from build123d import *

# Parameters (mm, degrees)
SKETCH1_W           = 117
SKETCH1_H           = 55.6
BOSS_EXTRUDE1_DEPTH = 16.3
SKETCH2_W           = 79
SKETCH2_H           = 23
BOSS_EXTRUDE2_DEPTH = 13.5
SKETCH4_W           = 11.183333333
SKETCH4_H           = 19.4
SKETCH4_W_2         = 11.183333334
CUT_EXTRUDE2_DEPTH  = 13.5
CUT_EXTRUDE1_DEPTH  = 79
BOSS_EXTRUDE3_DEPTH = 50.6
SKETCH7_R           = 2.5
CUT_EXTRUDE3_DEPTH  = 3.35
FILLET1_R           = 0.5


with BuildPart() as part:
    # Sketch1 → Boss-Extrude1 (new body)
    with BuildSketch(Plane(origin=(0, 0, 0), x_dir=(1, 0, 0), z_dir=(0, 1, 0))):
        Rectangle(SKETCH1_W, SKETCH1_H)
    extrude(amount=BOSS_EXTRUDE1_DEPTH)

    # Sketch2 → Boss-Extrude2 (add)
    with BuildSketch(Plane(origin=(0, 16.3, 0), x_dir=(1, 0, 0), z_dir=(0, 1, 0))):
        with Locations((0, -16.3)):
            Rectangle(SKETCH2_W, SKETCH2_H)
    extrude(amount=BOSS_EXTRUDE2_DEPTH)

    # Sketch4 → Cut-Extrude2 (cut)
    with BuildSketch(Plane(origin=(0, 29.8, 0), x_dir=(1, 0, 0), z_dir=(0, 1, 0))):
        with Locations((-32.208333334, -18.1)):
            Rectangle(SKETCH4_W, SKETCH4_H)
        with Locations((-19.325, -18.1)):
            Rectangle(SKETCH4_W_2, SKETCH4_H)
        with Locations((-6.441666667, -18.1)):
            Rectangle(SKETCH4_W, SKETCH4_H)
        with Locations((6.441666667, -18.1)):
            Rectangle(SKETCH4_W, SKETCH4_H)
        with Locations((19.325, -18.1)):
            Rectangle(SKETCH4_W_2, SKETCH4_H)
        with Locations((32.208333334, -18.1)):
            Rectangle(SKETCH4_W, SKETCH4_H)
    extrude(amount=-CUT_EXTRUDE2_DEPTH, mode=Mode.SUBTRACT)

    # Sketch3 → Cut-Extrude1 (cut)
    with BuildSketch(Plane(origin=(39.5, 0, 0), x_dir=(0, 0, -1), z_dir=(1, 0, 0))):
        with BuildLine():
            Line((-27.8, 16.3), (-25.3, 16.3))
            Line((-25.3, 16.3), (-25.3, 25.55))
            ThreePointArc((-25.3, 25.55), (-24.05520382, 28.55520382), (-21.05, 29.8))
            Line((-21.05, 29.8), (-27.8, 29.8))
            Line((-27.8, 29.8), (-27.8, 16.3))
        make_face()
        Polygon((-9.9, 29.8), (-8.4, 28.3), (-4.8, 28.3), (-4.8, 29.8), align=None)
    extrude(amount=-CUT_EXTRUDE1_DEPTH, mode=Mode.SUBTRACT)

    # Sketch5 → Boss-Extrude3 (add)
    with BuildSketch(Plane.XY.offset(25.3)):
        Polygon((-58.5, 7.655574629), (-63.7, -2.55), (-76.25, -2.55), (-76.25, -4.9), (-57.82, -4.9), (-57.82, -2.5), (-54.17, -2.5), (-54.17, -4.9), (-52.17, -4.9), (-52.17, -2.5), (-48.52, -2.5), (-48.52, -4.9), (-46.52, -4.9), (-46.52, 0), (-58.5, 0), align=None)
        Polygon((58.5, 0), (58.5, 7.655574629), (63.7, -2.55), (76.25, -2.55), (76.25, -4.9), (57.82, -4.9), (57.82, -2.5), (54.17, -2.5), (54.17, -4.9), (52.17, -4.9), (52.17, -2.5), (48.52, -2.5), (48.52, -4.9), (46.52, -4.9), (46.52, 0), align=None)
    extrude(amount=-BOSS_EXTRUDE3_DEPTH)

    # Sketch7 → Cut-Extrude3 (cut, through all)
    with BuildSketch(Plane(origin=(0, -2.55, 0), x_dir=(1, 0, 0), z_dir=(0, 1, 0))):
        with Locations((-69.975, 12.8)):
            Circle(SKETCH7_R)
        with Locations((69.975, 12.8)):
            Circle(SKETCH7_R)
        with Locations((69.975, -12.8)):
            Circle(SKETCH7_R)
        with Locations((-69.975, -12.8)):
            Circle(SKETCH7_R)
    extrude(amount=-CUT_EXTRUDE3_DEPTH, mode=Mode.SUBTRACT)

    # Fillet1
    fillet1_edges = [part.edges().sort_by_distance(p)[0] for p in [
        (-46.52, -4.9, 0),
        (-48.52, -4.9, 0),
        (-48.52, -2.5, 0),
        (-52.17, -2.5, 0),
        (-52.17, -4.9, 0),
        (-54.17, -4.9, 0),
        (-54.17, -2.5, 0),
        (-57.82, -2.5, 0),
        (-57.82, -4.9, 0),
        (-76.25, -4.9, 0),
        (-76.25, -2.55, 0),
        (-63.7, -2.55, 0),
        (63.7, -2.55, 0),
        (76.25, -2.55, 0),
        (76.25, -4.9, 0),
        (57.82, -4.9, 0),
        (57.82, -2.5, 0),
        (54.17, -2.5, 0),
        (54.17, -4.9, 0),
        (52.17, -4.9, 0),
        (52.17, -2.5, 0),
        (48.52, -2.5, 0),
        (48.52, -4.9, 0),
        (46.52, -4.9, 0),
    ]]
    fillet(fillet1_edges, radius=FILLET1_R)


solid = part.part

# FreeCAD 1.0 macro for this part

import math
import FreeCAD as App
import Part
import Sketcher

V = App.Vector
Q = App.Units.Quantity


def edges_at(feature, points):
    """Names of the edges that pass closest to the given points."""
    edges = feature.Shape.Edges
    near = lambda p: min(range(len(edges)), key=lambda i: edges[i].distToShape(Part.Vertex(*p))[0])
    return sorted({f"Edge{near(p) + 1}" for p in points})

doc = App.newDocument("Part")
body = doc.addObject("PartDesign::Body", "Body")

sketch1 = body.newObject("Sketcher::SketchObject", "Sketch")
sketch1.AttachmentSupport = (doc.getObject("XZ_Plane"), [""])
sketch1.MapMode = "FlatFace"
sketch1.addGeometry([
    Part.LineSegment(V(-58, -28, 0), V(-58, 28, 0)),
    Part.LineSegment(V(-58, 28, 0), V(58, 28, 0)),
    Part.LineSegment(V(58, 28, 0), V(58, -28, 0)),
    Part.LineSegment(V(58, -28, 0), V(-58, -28, 0)),
], False)
sketch1.addConstraint([
    Sketcher.Constraint("Coincident", 0, 2, 1, 1),
    Sketcher.Constraint("Coincident", 1, 2, 2, 1),
    Sketcher.Constraint("Coincident", 2, 2, 3, 1),
    Sketcher.Constraint("Coincident", 3, 2, 0, 1),
    Sketcher.Constraint("Vertical", 0),
    Sketcher.Constraint("Horizontal", 1),
    Sketcher.Constraint("Vertical", 2),
    Sketcher.Constraint("Horizontal", 3),
    Sketcher.Constraint("Symmetric", 0, 2, 2, 2, -1, 1),
    Sketcher.Constraint("DistanceX", 1, 1, 1, 2, 117.0),
    Sketcher.Constraint("DistanceY", 0, 1, 0, 2, 55.6),
])
pad1 = body.newObject("PartDesign::Pad", "Pad")
pad1.Profile = sketch1
pad1.Length = 16.3
pad1.Reversed = True

sketch2 = body.newObject("Sketcher::SketchObject", "Sketch001")
sketch2.AttachmentSupport = (doc.getObject("XZ_Plane"), [""])
sketch2.MapMode = "FlatFace"
sketch2.AttachmentOffset = App.Placement(V(0, 0, -16.3), App.Rotation())
sketch2.addGeometry([
    Part.LineSegment(V(-40, 5, 0), V(-40, 28, 0)),
    Part.LineSegment(V(-40, 28, 0), V(40, 28, 0)),
    Part.LineSegment(V(40, 28, 0), V(40, 5, 0)),
    Part.LineSegment(V(40, 5, 0), V(-40, 5, 0)),
], False)
sketch2.addConstraint([
    Sketcher.Constraint("Coincident", 0, 2, 1, 1),
    Sketcher.Constraint("Coincident", 1, 2, 2, 1),
    Sketcher.Constraint("Coincident", 2, 2, 3, 1),
    Sketcher.Constraint("Coincident", 3, 2, 0, 1),
    Sketcher.Constraint("Vertical", 0),
    Sketcher.Constraint("Horizontal", 1),
    Sketcher.Constraint("Vertical", 2),
    Sketcher.Constraint("Horizontal", 3),
    Sketcher.Constraint("DistanceX", 1, 1, 1, 2, 79.0),
    Sketcher.Constraint("DistanceY", 0, 1, 0, 2, 23.0),
    Sketcher.Constraint("DistanceX", 0, 2, -1, 1, 39.5),
    Sketcher.Constraint("DistanceY", -1, 1, 0, 2, 27.8),
])
pad2 = body.newObject("PartDesign::Pad", "Pad001")
pad2.Profile = sketch2
pad2.Length = 13.5
pad2.Reversed = True

sketch3 = body.newObject("Sketcher::SketchObject", "Sketch002")
sketch3.AttachmentSupport = (doc.getObject("XZ_Plane"), [""])
sketch3.MapMode = "FlatFace"
sketch3.AttachmentOffset = App.Placement(V(0, 0, -29.8), App.Rotation())
sketch3.addGeometry([
    Part.LineSegment(V(-38, 8, 0), V(-38, 28, 0)),
    Part.LineSegment(V(-38, 28, 0), V(-27, 28, 0)),
    Part.LineSegment(V(-27, 28, 0), V(-27, 8, 0)),
    Part.LineSegment(V(-27, 8, 0), V(-38, 8, 0)),
    Part.LineSegment(V(-25, 8, 0), V(-25, 28, 0)),
    Part.LineSegment(V(-25, 28, 0), V(-14, 28, 0)),
    Part.LineSegment(V(-14, 28, 0), V(-14, 8, 0)),
    Part.LineSegment(V(-14, 8, 0), V(-25, 8, 0)),
    Part.LineSegment(V(-12, 8, 0), V(-12, 28, 0)),
    Part.LineSegment(V(-12, 28, 0), V(-1, 28, 0)),
    Part.LineSegment(V(-1, 28, 0), V(-1, 8, 0)),
    Part.LineSegment(V(-1, 8, 0), V(-12, 8, 0)),
    Part.LineSegment(V(1, 8, 0), V(1, 28, 0)),
    Part.LineSegment(V(1, 28, 0), V(12, 28, 0)),
    Part.LineSegment(V(12, 28, 0), V(12, 8, 0)),
    Part.LineSegment(V(12, 8, 0), V(1, 8, 0)),
    Part.LineSegment(V(14, 8, 0), V(14, 28, 0)),
    Part.LineSegment(V(14, 28, 0), V(25, 28, 0)),
    Part.LineSegment(V(25, 28, 0), V(25, 8, 0)),
    Part.LineSegment(V(25, 8, 0), V(14, 8, 0)),
    Part.LineSegment(V(27, 8, 0), V(27, 28, 0)),
    Part.LineSegment(V(27, 28, 0), V(38, 28, 0)),
    Part.LineSegment(V(38, 28, 0), V(38, 8, 0)),
    Part.LineSegment(V(38, 8, 0), V(27, 8, 0)),
], False)
sketch3.addConstraint([
    Sketcher.Constraint("Coincident", 0, 2, 1, 1),
    Sketcher.Constraint("Coincident", 1, 2, 2, 1),
    Sketcher.Constraint("Coincident", 2, 2, 3, 1),
    Sketcher.Constraint("Coincident", 3, 2, 0, 1),
    Sketcher.Constraint("Coincident", 4, 2, 5, 1),
    Sketcher.Constraint("Coincident", 5, 2, 6, 1),
    Sketcher.Constraint("Coincident", 6, 2, 7, 1),
    Sketcher.Constraint("Coincident", 7, 2, 4, 1),
    Sketcher.Constraint("Coincident", 8, 2, 9, 1),
    Sketcher.Constraint("Coincident", 9, 2, 10, 1),
    Sketcher.Constraint("Coincident", 10, 2, 11, 1),
    Sketcher.Constraint("Coincident", 11, 2, 8, 1),
    Sketcher.Constraint("Coincident", 12, 2, 13, 1),
    Sketcher.Constraint("Coincident", 13, 2, 14, 1),
    Sketcher.Constraint("Coincident", 14, 2, 15, 1),
    Sketcher.Constraint("Coincident", 15, 2, 12, 1),
    Sketcher.Constraint("Coincident", 16, 2, 17, 1),
    Sketcher.Constraint("Coincident", 17, 2, 18, 1),
    Sketcher.Constraint("Coincident", 18, 2, 19, 1),
    Sketcher.Constraint("Coincident", 19, 2, 16, 1),
    Sketcher.Constraint("Coincident", 20, 2, 21, 1),
    Sketcher.Constraint("Coincident", 21, 2, 22, 1),
    Sketcher.Constraint("Coincident", 22, 2, 23, 1),
    Sketcher.Constraint("Coincident", 23, 2, 20, 1),
    Sketcher.Constraint("Vertical", 0),
    Sketcher.Constraint("Horizontal", 1),
    Sketcher.Constraint("Vertical", 2),
    Sketcher.Constraint("Horizontal", 3),
    Sketcher.Constraint("Vertical", 4),
    Sketcher.Constraint("Horizontal", 5),
    Sketcher.Constraint("Vertical", 6),
    Sketcher.Constraint("Horizontal", 7),
    Sketcher.Constraint("Vertical", 8),
    Sketcher.Constraint("Horizontal", 9),
    Sketcher.Constraint("Vertical", 10),
    Sketcher.Constraint("Horizontal", 11),
    Sketcher.Constraint("Vertical", 12),
    Sketcher.Constraint("Horizontal", 13),
    Sketcher.Constraint("Vertical", 14),
    Sketcher.Constraint("Horizontal", 15),
    Sketcher.Constraint("Vertical", 16),
    Sketcher.Constraint("Horizontal", 17),
    Sketcher.Constraint("Vertical", 18),
    Sketcher.Constraint("Horizontal", 19),
    Sketcher.Constraint("Vertical", 20),
    Sketcher.Constraint("Horizontal", 21),
    Sketcher.Constraint("Vertical", 22),
    Sketcher.Constraint("Horizontal", 23),
    Sketcher.Constraint("Symmetric", 9, 2, 12, 2, -2),
    Sketcher.Constraint("Symmetric", 11, 2, 14, 2, -2),
    Sketcher.Constraint("Symmetric", 5, 2, 16, 2, -2),
    Sketcher.Constraint("Symmetric", 7, 2, 18, 2, -2),
    Sketcher.Constraint("Symmetric", 1, 2, 20, 2, -2),
    Sketcher.Constraint("Symmetric", 3, 2, 22, 2, -2),
    Sketcher.Constraint("Horizontal", 1, 2, 4, 2),
    Sketcher.Constraint("Horizontal", 3, 2, 6, 2),
    Sketcher.Constraint("Horizontal", 5, 2, 8, 2),
    Sketcher.Constraint("Horizontal", 7, 2, 10, 2),
    Sketcher.Constraint("Equal", 3, 5),
    Sketcher.Constraint("Equal", 7, 9),
    Sketcher.Constraint("DistanceY", 0, 1, 0, 2, 19.4),
    Sketcher.Constraint("DistanceX", 0, 2, -1, 1, 37.8),
    Sketcher.Constraint("DistanceY", -1, 1, 0, 2, 27.8),
    Sketcher.Constraint("DistanceX", 1, 2, 4, 2, 1.7),
    Sketcher.Constraint("DistanceX", 5, 2, 8, 2, 1.7),
    Sketcher.Constraint("DistanceX", 9, 2, 12, 2, 1.7),
])
pocket1 = body.newObject("PartDesign::Pocket", "Pocket")
pocket1.Profile = sketch3
pocket1.Length = 13.5
pocket1.Reversed = True

sketch4 = body.newObject("Sketcher::SketchObject", "Sketch003")
sketch4.AttachmentSupport = (doc.getObject("YZ_Plane"), [""])
sketch4.MapMode = "FlatFace"
sketch4.AttachmentOffset = App.Placement(V(0, 0, 39.5), App.Rotation())
sketch4.addGeometry([
    Part.LineSegment(V(16.3, 27.8, 0), V(16.3, 25.3, 0)),
    Part.LineSegment(V(16.3, 25.3, 0), V(25.6, 25.3, 0)),
    Part.ArcOfCircle(Part.Circle(V(25.6, 21.1, 0), V(0, 0, 1), 4.2), math.radians(0), math.radians(90)),
    Part.LineSegment(V(29.8, 21.1, 0), V(29.8, 27.8, 0)),
    Part.LineSegment(V(29.8, 27.8, 0), V(16.3, 27.8, 0)),
    Part.LineSegment(V(29.8, 9.9, 0), V(28.3, 8.4, 0)),
    Part.LineSegment(V(28.3, 8.4, 0), V(28.3, 4.8, 0)),
    Part.LineSegment(V(28.3, 4.8, 0), V(29.8, 4.8, 0)),
    Part.LineSegment(V(29.8, 4.8, 0), V(29.8, 9.9, 0)),
], False)
sketch4.addConstraint([
    Sketcher.Constraint("Coincident", 0, 2, 1, 1),
    Sketcher.Constraint("Tangent", 1, 2, 2, 2),
    Sketcher.Constraint("Tangent", 2, 1, 3, 1),
    Sketcher.Constraint("Coincident", 3, 2, 4, 1),
    Sketcher.Constraint("Coincident", 4, 2, 0, 1),
    Sketcher.Constraint("Coincident", 5, 2, 6, 1),
    Sketcher.Constraint("Coincident", 6, 2, 7, 1),
    Sketcher.Constraint("Coincident", 7, 2, 8, 1),
    Sketcher.Constraint("Coincident", 8, 2, 5, 1),
    Sketcher.Constraint("Vertical", 0),
    Sketcher.Constraint("Horizontal", 1),
    Sketcher.Constraint("Vertical", 3),
    Sketcher.Constraint("Horizontal", 4),
    Sketcher.Constraint("Vertical", 6),
    Sketcher.Constraint("Horizontal", 7),
    Sketcher.Constraint("Vertical", 8),
    Sketcher.Constraint("Vertical", 3, 2, 7, 2),
    Sketcher.Constraint("Angle", 5, Q("-135 deg")),
    Sketcher.Constraint("Radius", 2, 4.25),
    Sketcher.Constraint("DistanceX", 4, 2, 4, 1, 13.5),
    Sketcher.Constraint("DistanceX", 7, 1, 7, 2, 1.5),
    Sketcher.Constraint("DistanceY", 0, 2, 0, 1, 2.5),
    Sketcher.Constraint("DistanceY", 6, 2, 6, 1, 3.6),
    Sketcher.Constraint("DistanceY", 6, 2, 3, 2, 23.0),
    Sketcher.Constraint("DistanceX", -1, 1, 0, 2, 16.3),
    Sketcher.Constraint("DistanceY", -1, 1, 0, 2, 25.3),
])
pocket2 = body.newObject("PartDesign::Pocket", "Pocket001")
pocket2.Profile = sketch4
pocket2.Length = 79

sketch5 = body.newObject("Sketcher::SketchObject", "Sketch004")
sketch5.AttachmentSupport = (doc.getObject("XY_Plane"), [""])
sketch5.MapMode = "FlatFace"
sketch5.AttachmentOffset = App.Placement(V(0, 0, 25.3), App.Rotation())
sketch5.addGeometry([
    Part.LineSegment(V(-58.5, 7.7, 0), V(-63.7, -2.5, 0)),
    Part.LineSegment(V(-63.7, -2.5, 0), V(-76.2, -2.5, 0)),
    Part.LineSegment(V(-76.2, -2.5, 0), V(-76.2, -4.9, 0)),
    Part.LineSegment(V(-76.2, -4.9, 0), V(-57.8, -4.9, 0)),
    Part.LineSegment(V(-57.8, -4.9, 0), V(-57.8, -2.5, 0)),
    Part.LineSegment(V(-57.8, -2.5, 0), V(-54.2, -2.5, 0)),
    Part.LineSegment(V(-54.2, -2.5, 0), V(-54.2, -4.9, 0)),
    Part.LineSegment(V(-54.2, -4.9, 0), V(-52.2, -4.9, 0)),
    Part.LineSegment(V(-52.2, -4.9, 0), V(-52.2, -2.5, 0)),
    Part.LineSegment(V(-52.2, -2.5, 0), V(-48.5, -2.5, 0)),
    Part.LineSegment(V(-48.5, -2.5, 0), V(-48.5, -4.9, 0)),
    Part.LineSegment(V(-48.5, -4.9, 0), V(-46.5, -4.9, 0)),
    Part.LineSegment(V(-46.5, -4.9, 0), V(-46.5, 0, 0)),
    Part.LineSegment(V(-46.5, 0, 0), V(-58.5, 0, 0)),
    Part.LineSegment(V(-58.5, 0, 0), V(-58.5, 7.7, 0)),
    Part.LineSegment(V(58.5, 7.7, 0), V(58.5, 0, 0)),
    Part.LineSegment(V(58.5, 0, 0), V(46.5, 0, 0)),
    Part.LineSegment(V(46.5, 0, 0), V(46.5, -4.9, 0)),
    Part.LineSegment(V(46.5, -4.9, 0), V(48.5, -4.9, 0)),
    Part.LineSegment(V(48.5, -4.9, 0), V(48.5, -2.5, 0)),
    Part.LineSegment(V(48.5, -2.5, 0), V(52.2, -2.5, 0)),
    Part.LineSegment(V(52.2, -2.5, 0), V(52.2, -4.9, 0)),
    Part.LineSegment(V(52.2, -4.9, 0), V(54.2, -4.9, 0)),
    Part.LineSegment(V(54.2, -4.9, 0), V(54.2, -2.5, 0)),
    Part.LineSegment(V(54.2, -2.5, 0), V(57.8, -2.5, 0)),
    Part.LineSegment(V(57.8, -2.5, 0), V(57.8, -4.9, 0)),
    Part.LineSegment(V(57.8, -4.9, 0), V(76.2, -4.9, 0)),
    Part.LineSegment(V(76.2, -4.9, 0), V(76.2, -2.5, 0)),
    Part.LineSegment(V(76.2, -2.5, 0), V(63.7, -2.5, 0)),
    Part.LineSegment(V(63.7, -2.5, 0), V(58.5, 7.7, 0)),
], False)
sketch5.addConstraint([
    Sketcher.Constraint("Coincident", 0, 2, 1, 1),
    Sketcher.Constraint("Coincident", 1, 2, 2, 1),
    Sketcher.Constraint("Coincident", 2, 2, 3, 1),
    Sketcher.Constraint("Coincident", 3, 2, 4, 1),
    Sketcher.Constraint("Coincident", 4, 2, 5, 1),
    Sketcher.Constraint("Coincident", 5, 2, 6, 1),
    Sketcher.Constraint("Coincident", 6, 2, 7, 1),
    Sketcher.Constraint("Coincident", 7, 2, 8, 1),
    Sketcher.Constraint("Coincident", 8, 2, 9, 1),
    Sketcher.Constraint("Coincident", 9, 2, 10, 1),
    Sketcher.Constraint("Coincident", 10, 2, 11, 1),
    Sketcher.Constraint("Coincident", 11, 2, 12, 1),
    Sketcher.Constraint("Coincident", 12, 2, 13, 1),
    Sketcher.Constraint("Coincident", 13, 2, 14, 1),
    Sketcher.Constraint("Coincident", 14, 2, 0, 1),
    Sketcher.Constraint("Coincident", 15, 2, 16, 1),
    Sketcher.Constraint("Coincident", 16, 2, 17, 1),
    Sketcher.Constraint("Coincident", 17, 2, 18, 1),
    Sketcher.Constraint("Coincident", 18, 2, 19, 1),
    Sketcher.Constraint("Coincident", 19, 2, 20, 1),
    Sketcher.Constraint("Coincident", 20, 2, 21, 1),
    Sketcher.Constraint("Coincident", 21, 2, 22, 1),
    Sketcher.Constraint("Coincident", 22, 2, 23, 1),
    Sketcher.Constraint("Coincident", 23, 2, 24, 1),
    Sketcher.Constraint("Coincident", 24, 2, 25, 1),
    Sketcher.Constraint("Coincident", 25, 2, 26, 1),
    Sketcher.Constraint("Coincident", 26, 2, 27, 1),
    Sketcher.Constraint("Coincident", 27, 2, 28, 1),
    Sketcher.Constraint("Coincident", 28, 2, 29, 1),
    Sketcher.Constraint("Coincident", 29, 2, 15, 1),
    Sketcher.Constraint("Horizontal", 1),
    Sketcher.Constraint("Vertical", 2),
    Sketcher.Constraint("Horizontal", 3),
    Sketcher.Constraint("Vertical", 4),
    Sketcher.Constraint("Horizontal", 5),
    Sketcher.Constraint("Vertical", 6),
    Sketcher.Constraint("Horizontal", 7),
    Sketcher.Constraint("Vertical", 8),
    Sketcher.Constraint("Horizontal", 9),
    Sketcher.Constraint("Vertical", 10),
    Sketcher.Constraint("Horizontal", 11),
    Sketcher.Constraint("Vertical", 12),
    Sketcher.Constraint("Horizontal", 13),
    Sketcher.Constraint("Vertical", 14),
    Sketcher.Constraint("Vertical", 15),
    Sketcher.Constraint("Horizontal", 16),
    Sketcher.Constraint("Vertical", 17),
    Sketcher.Constraint("Horizontal", 18),
    Sketcher.Constraint("Vertical", 19),
    Sketcher.Constraint("Horizontal", 20),
    Sketcher.Constraint("Vertical", 21),
    Sketcher.Constraint("Horizontal", 22),
    Sketcher.Constraint("Vertical", 23),
    Sketcher.Constraint("Horizontal", 24),
    Sketcher.Constraint("Vertical", 25),
    Sketcher.Constraint("Horizontal", 26),
    Sketcher.Constraint("Vertical", 27),
    Sketcher.Constraint("Horizontal", 28),
    Sketcher.Constraint("Symmetric", 13, 2, 15, 2, -1, 1),
    Sketcher.Constraint("Symmetric", 12, 2, 16, 2, -2),
    Sketcher.Constraint("Symmetric", 10, 2, 18, 2, -2),
    Sketcher.Constraint("Symmetric", 8, 2, 20, 2, -2),
    Sketcher.Constraint("Symmetric", 6, 2, 22, 2, -2),
    Sketcher.Constraint("Symmetric", 4, 2, 24, 2, -2),
    Sketcher.Constraint("Symmetric", 2, 2, 26, 2, -2),
    Sketcher.Constraint("Symmetric", 0, 2, 28, 2, -2),
    Sketcher.Constraint("Horizontal", 3, 2, 6, 2),
    Sketcher.Constraint("Horizontal", 5, 2, 8, 2),
    Sketcher.Constraint("Horizontal", 7, 2, 10, 2),
    Sketcher.Constraint("Horizontal", 14, 2, 29, 2),
    Sketcher.Constraint("Equal", 5, 9),
    Sketcher.Constraint("Equal", 7, 11),
    Sketcher.Constraint("DistanceX", 7, 1, 7, 2, 2.0),
    Sketcher.Constraint("Angle", 0, Q("-117 deg")),
    Sketcher.Constraint("DistanceY", 4, 1, 4, 2, 2.4),
    Sketcher.Constraint("DistanceY", 12, 1, 12, 2, 4.9),
    Sketcher.Constraint("DistanceX", 1, 2, 1, 1, 12.55),
    Sketcher.Constraint("DistanceX", 3, 1, 3, 2, 18.43),
    Sketcher.Constraint("DistanceX", 5, 1, 5, 2, 3.65),
    Sketcher.Constraint("DistanceX", 13, 2, 13, 1, 11.98),
    Sketcher.Constraint("DistanceY", 2, 2, 2, 1, 2.35),
    Sketcher.Constraint("DistanceX", 0, 2, -1, 1, 63.7),
])
pad3 = body.newObject("PartDesign::Pad", "Pad002")
pad3.Profile = sketch5
pad3.Length = 50.6
pad3.Reversed = True

sketch6 = body.newObject("Sketcher::SketchObject", "Sketch005")
sketch6.AttachmentSupport = (doc.getObject("XZ_Plane"), [""])
sketch6.MapMode = "FlatFace"
sketch6.AttachmentOffset = App.Placement(V(0, 0, 2.55), App.Rotation())
sketch6.addGeometry([
    Part.Circle(V(-70, -12.8, 0), V(0, 0, 1), 2.5),
    Part.Circle(V(70, -12.8, 0), V(0, 0, 1), 2.5),
    Part.Circle(V(70, 12.8, 0), V(0, 0, 1), 2.5),
    Part.Circle(V(-70, 12.8, 0), V(0, 0, 1), 2.5),
], False)
sketch6.addConstraint([
    Sketcher.Constraint("Equal", 0, 1),
    Sketcher.Constraint("Equal", 1, 2),
    Sketcher.Constraint("Equal", 2, 3),
    Sketcher.Constraint("Symmetric", 0, 3, 2, 3, -1, 1),
    Sketcher.Constraint("Symmetric", 1, 3, 3, 3, -1, 1),
    Sketcher.Constraint("Symmetric", 0, 3, 1, 3, -2),
    Sketcher.Constraint("Diameter", 0, 5.0),
    Sketcher.Constraint("DistanceY", 0, 3, -1, 1, 12.8),
    Sketcher.Constraint("DistanceX", 0, 3, 1, 3, 139.95),
])
pocket3 = body.newObject("PartDesign::Pocket", "Pocket002")
pocket3.Profile = sketch6
pocket3.Type = "ThroughAll"
pocket3.Reversed = True
doc.recompute()

fillet = body.newObject("PartDesign::Fillet", "Fillet")
fillet.Base = (pocket3, edges_at(pocket3, [
    (-46.52, -4.9, 0),
    (-48.52, -4.9, 0),
    (-48.52, -2.5, 0),
    (-52.17, -2.5, 0),
    (-52.17, -4.9, 0),
    (-54.17, -4.9, 0),
    (-54.17, -2.5, 0),
    (-57.82, -2.5, 0),
    (-57.82, -4.9, 0),
    (-76.25, -4.9, 0),
    (-76.25, -2.55, 0),
    (-63.7, -2.55, 0),
    (63.7, -2.55, 0),
    (76.25, -2.55, 0),
    (76.25, -4.9, 0),
    (57.82, -4.9, 0),
    (57.82, -2.5, 0),
    (54.17, -2.5, 0),
    (54.17, -4.9, 0),
    (52.17, -4.9, 0),
    (52.17, -2.5, 0),
    (48.52, -2.5, 0),
    (48.52, -4.9, 0),
    (46.52, -4.9, 0),
]))
fillet.Radius = 0.5

doc.recompute()
